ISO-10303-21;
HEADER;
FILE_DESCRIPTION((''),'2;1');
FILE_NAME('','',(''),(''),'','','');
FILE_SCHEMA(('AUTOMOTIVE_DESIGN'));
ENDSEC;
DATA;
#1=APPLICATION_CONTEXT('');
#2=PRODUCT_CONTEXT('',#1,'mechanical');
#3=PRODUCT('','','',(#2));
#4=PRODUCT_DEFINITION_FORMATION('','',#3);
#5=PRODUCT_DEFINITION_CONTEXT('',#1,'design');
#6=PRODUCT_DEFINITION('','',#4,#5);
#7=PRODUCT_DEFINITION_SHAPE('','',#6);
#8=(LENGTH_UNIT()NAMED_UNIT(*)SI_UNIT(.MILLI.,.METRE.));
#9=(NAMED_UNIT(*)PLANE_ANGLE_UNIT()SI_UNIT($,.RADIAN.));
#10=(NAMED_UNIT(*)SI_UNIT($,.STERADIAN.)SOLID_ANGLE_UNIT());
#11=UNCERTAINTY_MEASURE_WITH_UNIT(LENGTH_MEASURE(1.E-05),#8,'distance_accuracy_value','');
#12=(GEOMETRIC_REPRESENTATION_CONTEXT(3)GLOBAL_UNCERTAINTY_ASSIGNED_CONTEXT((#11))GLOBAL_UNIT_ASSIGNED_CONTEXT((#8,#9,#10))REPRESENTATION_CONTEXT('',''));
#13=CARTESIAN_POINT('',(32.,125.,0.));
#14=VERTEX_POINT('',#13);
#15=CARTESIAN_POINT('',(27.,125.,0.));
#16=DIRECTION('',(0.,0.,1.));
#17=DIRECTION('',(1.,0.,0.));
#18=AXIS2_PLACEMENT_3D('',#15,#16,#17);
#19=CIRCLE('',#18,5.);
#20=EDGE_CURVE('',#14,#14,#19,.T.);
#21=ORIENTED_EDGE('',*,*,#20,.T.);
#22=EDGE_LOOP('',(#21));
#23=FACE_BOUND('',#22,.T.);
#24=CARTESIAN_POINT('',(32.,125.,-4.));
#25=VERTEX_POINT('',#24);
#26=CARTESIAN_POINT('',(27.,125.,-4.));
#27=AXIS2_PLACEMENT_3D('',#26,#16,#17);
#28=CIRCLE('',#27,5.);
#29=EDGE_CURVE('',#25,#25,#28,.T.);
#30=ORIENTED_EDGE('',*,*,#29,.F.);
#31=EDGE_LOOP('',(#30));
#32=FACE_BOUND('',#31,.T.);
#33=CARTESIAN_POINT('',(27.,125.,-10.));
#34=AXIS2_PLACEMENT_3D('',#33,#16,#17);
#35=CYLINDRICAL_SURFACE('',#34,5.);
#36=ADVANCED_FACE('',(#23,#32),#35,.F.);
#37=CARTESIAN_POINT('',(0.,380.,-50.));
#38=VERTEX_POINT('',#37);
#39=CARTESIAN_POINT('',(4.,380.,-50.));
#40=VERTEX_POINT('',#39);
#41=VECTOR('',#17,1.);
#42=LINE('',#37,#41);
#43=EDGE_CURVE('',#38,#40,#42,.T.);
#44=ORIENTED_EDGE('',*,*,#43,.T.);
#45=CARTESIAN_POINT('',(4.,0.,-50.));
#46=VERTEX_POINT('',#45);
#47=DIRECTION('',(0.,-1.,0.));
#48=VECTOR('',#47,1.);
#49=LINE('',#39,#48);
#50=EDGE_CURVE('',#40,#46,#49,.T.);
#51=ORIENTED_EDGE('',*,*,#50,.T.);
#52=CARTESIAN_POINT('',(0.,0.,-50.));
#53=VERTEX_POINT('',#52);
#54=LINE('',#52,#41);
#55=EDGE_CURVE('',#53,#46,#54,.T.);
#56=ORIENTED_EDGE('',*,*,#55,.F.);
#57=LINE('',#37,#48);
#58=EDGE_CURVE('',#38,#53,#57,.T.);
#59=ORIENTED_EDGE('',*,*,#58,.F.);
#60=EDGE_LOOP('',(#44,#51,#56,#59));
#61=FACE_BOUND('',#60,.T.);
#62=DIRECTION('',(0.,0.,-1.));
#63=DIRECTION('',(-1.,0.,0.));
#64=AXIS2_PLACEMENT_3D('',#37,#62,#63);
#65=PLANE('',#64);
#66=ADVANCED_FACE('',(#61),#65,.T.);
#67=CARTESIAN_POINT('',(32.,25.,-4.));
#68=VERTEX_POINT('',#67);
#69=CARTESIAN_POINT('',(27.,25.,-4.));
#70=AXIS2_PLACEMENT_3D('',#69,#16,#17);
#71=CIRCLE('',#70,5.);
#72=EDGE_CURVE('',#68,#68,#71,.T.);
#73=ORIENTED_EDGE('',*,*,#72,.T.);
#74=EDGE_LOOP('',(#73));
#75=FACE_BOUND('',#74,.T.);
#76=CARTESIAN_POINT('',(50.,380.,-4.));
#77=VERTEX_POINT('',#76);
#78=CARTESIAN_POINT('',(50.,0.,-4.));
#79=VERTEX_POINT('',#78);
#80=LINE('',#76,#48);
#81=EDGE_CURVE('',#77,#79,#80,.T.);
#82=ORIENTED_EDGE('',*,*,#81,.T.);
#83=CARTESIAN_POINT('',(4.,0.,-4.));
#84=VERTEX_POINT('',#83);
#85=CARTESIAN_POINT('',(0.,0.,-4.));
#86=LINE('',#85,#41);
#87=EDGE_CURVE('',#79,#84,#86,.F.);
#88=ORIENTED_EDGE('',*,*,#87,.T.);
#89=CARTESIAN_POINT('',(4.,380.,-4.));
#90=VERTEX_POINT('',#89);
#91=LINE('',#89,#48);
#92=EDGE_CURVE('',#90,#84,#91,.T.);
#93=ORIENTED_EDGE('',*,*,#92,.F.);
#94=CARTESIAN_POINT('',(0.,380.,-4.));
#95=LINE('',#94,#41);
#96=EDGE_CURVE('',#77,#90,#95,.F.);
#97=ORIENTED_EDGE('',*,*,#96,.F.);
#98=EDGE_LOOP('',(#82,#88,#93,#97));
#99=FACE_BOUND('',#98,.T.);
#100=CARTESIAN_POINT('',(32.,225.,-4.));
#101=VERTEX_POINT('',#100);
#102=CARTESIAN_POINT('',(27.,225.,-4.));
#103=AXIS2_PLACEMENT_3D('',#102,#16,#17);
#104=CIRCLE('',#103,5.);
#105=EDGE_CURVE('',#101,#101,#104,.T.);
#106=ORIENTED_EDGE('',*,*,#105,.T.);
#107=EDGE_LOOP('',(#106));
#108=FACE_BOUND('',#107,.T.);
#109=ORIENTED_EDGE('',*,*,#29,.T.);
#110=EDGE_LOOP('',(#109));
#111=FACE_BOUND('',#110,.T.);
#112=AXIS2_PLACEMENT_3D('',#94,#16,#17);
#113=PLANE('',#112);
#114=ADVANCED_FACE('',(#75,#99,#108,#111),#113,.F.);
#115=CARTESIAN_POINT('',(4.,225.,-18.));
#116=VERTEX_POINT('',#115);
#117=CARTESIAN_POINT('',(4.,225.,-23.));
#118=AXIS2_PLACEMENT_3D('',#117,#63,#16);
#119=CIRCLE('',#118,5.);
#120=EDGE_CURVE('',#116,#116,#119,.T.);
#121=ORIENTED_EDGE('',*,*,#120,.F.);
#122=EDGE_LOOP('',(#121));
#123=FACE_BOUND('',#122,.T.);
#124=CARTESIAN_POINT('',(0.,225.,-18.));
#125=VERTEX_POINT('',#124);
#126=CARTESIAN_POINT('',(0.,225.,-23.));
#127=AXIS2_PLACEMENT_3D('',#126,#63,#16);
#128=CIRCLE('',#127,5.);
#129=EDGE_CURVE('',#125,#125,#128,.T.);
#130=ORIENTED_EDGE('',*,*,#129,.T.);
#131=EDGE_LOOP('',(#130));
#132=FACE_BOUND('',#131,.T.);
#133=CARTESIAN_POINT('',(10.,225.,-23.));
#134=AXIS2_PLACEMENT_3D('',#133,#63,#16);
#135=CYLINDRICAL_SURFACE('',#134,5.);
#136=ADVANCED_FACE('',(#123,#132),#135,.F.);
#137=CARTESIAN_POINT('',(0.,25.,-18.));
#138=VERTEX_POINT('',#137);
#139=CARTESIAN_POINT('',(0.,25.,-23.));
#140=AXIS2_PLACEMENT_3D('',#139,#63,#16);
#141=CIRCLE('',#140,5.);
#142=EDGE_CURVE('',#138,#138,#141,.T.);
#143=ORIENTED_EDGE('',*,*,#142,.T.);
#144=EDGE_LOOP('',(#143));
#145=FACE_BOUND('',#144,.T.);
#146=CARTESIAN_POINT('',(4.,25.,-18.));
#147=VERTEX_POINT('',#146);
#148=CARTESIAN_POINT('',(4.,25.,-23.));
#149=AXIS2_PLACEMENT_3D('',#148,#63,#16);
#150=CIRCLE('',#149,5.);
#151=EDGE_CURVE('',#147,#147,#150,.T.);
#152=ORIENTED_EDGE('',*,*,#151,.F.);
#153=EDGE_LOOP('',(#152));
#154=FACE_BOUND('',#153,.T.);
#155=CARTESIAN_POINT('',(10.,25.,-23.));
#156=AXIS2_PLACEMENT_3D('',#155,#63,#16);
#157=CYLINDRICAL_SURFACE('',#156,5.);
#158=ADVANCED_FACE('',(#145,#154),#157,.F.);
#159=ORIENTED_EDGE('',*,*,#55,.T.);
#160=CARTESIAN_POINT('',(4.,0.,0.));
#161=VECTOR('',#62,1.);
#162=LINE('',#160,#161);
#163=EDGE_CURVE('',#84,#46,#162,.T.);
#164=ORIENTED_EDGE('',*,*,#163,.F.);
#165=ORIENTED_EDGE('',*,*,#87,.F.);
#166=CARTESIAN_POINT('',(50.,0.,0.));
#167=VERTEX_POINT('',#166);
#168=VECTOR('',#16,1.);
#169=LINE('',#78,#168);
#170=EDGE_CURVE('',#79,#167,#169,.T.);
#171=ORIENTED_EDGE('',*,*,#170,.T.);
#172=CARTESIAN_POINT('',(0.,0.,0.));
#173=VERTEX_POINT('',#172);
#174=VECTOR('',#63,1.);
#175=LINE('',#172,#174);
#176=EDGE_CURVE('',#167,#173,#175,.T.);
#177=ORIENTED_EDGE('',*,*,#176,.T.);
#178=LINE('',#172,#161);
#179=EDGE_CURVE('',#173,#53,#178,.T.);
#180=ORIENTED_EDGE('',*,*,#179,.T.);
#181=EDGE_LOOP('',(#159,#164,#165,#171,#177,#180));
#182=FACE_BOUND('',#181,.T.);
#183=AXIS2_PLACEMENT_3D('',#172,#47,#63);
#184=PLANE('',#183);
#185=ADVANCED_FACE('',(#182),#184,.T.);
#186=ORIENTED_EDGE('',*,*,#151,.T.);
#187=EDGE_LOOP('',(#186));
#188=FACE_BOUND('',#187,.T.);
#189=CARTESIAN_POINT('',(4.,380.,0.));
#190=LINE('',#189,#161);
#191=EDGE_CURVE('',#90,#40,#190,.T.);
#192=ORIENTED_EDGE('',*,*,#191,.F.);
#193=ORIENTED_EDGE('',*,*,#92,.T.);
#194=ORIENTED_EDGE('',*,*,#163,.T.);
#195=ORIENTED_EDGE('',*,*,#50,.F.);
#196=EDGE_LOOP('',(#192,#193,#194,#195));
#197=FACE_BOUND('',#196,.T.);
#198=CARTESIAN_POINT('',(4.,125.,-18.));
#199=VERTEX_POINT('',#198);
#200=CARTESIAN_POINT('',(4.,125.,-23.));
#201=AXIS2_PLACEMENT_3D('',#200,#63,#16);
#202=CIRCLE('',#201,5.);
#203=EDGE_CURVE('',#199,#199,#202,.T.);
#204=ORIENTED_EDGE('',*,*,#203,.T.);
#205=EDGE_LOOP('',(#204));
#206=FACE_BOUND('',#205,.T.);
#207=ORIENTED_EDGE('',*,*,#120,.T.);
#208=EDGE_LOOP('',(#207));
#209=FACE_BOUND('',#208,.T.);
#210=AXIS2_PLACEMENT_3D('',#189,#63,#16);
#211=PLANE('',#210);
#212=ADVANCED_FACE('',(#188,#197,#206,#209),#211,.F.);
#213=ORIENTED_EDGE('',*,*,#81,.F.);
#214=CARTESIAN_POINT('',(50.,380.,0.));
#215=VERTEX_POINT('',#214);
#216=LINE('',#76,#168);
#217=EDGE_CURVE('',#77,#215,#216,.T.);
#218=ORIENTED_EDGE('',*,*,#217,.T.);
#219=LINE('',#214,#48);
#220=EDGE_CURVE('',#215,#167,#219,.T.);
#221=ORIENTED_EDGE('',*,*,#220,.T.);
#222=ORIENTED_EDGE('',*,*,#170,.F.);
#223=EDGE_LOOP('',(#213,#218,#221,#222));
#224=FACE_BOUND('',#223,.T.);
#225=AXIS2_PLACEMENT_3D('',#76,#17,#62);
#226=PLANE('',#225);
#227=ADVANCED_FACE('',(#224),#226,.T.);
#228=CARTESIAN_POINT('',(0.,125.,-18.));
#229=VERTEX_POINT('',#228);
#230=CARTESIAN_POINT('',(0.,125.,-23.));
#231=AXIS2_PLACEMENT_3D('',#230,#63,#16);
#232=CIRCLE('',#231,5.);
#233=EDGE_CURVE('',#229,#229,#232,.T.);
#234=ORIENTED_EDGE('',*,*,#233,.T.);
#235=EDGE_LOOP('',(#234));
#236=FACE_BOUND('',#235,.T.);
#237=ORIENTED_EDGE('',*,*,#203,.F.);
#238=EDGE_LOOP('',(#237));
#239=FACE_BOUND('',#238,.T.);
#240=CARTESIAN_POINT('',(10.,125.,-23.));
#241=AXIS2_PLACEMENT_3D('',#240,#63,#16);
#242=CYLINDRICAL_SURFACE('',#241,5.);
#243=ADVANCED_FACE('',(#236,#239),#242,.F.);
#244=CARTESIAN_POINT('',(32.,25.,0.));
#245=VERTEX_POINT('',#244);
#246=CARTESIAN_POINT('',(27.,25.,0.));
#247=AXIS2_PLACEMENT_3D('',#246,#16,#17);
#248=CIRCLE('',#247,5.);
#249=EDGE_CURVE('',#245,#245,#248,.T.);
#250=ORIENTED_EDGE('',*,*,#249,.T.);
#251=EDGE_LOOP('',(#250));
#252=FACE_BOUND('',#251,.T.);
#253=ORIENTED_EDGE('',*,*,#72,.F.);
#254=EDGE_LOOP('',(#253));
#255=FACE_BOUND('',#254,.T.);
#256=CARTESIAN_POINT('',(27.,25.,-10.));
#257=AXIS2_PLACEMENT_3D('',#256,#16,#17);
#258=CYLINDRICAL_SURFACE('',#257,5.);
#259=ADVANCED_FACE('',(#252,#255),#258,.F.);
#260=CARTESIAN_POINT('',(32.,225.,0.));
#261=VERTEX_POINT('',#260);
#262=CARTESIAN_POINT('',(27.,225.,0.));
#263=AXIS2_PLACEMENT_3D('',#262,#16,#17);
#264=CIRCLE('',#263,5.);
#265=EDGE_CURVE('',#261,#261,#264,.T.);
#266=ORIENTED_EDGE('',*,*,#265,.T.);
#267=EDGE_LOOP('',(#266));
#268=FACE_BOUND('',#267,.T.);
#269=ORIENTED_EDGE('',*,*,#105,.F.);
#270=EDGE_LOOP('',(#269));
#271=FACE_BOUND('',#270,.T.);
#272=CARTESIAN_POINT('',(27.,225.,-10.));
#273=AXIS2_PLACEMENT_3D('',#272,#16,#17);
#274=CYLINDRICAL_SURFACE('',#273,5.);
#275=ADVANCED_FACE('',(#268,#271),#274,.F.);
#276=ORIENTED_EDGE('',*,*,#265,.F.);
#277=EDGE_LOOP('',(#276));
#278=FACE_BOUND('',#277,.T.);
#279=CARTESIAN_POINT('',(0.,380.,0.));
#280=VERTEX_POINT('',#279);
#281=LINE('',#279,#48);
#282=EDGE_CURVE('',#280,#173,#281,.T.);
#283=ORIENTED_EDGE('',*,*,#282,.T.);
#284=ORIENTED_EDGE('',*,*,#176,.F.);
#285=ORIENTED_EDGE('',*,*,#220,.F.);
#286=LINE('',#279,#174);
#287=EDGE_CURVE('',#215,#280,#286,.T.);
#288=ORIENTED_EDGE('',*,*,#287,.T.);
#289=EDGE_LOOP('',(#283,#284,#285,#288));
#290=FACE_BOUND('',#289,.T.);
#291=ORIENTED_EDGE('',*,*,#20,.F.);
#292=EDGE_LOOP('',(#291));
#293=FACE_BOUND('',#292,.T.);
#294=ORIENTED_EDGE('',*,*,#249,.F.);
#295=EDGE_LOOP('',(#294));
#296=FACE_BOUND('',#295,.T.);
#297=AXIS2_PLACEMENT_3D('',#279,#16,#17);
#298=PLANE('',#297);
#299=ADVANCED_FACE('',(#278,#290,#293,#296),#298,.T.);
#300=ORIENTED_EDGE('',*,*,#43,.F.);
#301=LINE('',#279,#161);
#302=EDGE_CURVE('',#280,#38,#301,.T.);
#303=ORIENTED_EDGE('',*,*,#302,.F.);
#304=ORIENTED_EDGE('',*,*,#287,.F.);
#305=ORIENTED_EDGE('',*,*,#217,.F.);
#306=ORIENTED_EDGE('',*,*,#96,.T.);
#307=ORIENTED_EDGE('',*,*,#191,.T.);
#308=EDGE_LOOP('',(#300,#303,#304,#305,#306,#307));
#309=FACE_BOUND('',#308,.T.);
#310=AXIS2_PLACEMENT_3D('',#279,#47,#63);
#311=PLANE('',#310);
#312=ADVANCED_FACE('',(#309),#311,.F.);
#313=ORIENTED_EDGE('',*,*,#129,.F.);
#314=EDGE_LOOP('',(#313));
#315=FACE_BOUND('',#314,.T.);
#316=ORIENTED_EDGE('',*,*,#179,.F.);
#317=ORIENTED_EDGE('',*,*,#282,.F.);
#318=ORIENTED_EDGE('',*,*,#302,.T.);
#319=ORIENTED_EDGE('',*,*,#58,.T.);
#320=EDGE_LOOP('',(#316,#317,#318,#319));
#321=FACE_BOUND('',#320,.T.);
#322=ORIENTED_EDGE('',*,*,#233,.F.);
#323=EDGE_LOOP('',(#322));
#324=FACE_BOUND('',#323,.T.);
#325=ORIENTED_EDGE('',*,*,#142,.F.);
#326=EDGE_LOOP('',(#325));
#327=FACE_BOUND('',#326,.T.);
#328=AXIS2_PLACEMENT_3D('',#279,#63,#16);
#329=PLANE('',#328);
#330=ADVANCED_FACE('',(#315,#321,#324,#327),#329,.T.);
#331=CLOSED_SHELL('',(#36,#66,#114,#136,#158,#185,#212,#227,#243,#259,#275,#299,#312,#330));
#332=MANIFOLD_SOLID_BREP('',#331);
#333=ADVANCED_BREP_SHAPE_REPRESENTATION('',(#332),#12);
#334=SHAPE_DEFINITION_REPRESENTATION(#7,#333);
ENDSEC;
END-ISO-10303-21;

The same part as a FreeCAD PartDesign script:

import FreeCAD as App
import Part
import Sketcher
Q = App.Units.Quantity


def add_polygon(sketch, points):
    """Adds a closed chain of lines whose ends are joined by coincident constraints."""
    first, n = sketch.GeometryCount, len(points)
    for a, b in zip(points, points[1:] + points[:1]):
        sketch.addGeometry(Part.LineSegment(App.Vector(*a, 0), App.Vector(*b, 0)), False)
    for i in range(n):
        sketch.addConstraint(Sketcher.Constraint("Coincident", first + i, 2, first + (i + 1) % n, 1))

doc = App.newDocument("Part")
params = doc.addObject("Spreadsheet::Sheet", "Params")
for row, (alias, value) in enumerate([
    ("sketch1_width", "50 mm"),
    ("sketch1_width2", "46 mm"),
    ("pad1_length", "380 mm"),
    ("sketch2_diameter", "10 mm"),
    ("pocket1_length", "10 mm"),
    ("sketch3_diameter", "10 mm"),
    ("pocket2_length", "10 mm"),
], start=1):
    params.set(f"A{row}", alias)
    params.set(f"B{row}", "=" + value)
    params.setAlias(f"B{row}", alias)

body = doc.addObject("PartDesign::Body", "Body")

sketch1 = body.newObject("Sketcher::SketchObject", "Sketch")
sketch1.AttachmentSupport = (doc.getObject("XZ_Plane"), [""])
sketch1.MapMode = "FlatFace"
add_polygon(sketch1, [(0, -50), (0, 0), (50, 0), (50, -4), (4, -4), (4, -50)])
sketch1.addConstraint(Sketcher.Constraint("Vertical", 0))
sketch1.addConstraint(Sketcher.Constraint("Horizontal", 1))
sketch1.addConstraint(Sketcher.Constraint("Vertical", 2))
sketch1.addConstraint(Sketcher.Constraint("Horizontal", 3))
sketch1.addConstraint(Sketcher.Constraint("Vertical", 4))
sketch1.addConstraint(Sketcher.Constraint("Horizontal", 5))
sketch1.addConstraint(Sketcher.Constraint("Coincident", 0, 2, -1, 1))
sketch1.addConstraint(Sketcher.Constraint("Equal", 1, 0))
sketch1.addConstraint(Sketcher.Constraint("Equal", 5, 2))
sketch1.addConstraint(Sketcher.Constraint("DistanceX", 1, 1, 1, 2, Q("50 mm")))
sketch1.addConstraint(Sketcher.Constraint("DistanceX", 3, 2, 3, 1, Q("46 mm")))
sketch1.setExpression("Constraints[15]", "Params.sketch1_width")
sketch1.setExpression("Constraints[16]", "Params.sketch1_width2")
pad1 = body.newObject("PartDesign::Pad", "Pad")
pad1.Profile = sketch1
pad1.setExpression("Length", "Params.pad1_length")
pad1.Reversed = True

sketch2 = body.newObject("Sketcher::SketchObject", "Sketch001")
sketch2.AttachmentSupport = (doc.getObject("XY_Plane"), [""])
sketch2.MapMode = "FlatFace"
sketch2.addGeometry(Part.Circle(App.Vector(27, 225, 0), App.Vector(0, 0, 1), 5), False)
sketch2.addGeometry(Part.Circle(App.Vector(27, 125, 0), App.Vector(0, 0, 1), 5), False)
sketch2.addGeometry(Part.Circle(App.Vector(27, 25, 0), App.Vector(0, 0, 1), 5), False)
sketch2.addConstraint(Sketcher.Constraint("Equal", 0, 1))
sketch2.addConstraint(Sketcher.Constraint("Equal", 1, 2))
sketch2.addConstraint(Sketcher.Constraint("Vertical", 0, 3, 1, 3))
sketch2.addConstraint(Sketcher.Constraint("Vertical", 1, 3, 2, 3))
sketch2.addConstraint(Sketcher.Constraint("Diameter", 0, Q("10 mm")))
sketch2.addConstraint(Sketcher.Constraint("DistanceX", -1, 1, 0, 3, Q("27 mm")))
sketch2.addConstraint(Sketcher.Constraint("DistanceY", -1, 1, 0, 3, Q("225 mm")))
sketch2.addConstraint(Sketcher.Constraint("DistanceY", -1, 1, 1, 3, Q("125 mm")))
sketch2.addConstraint(Sketcher.Constraint("DistanceY", -1, 1, 2, 3, Q("25 mm")))
sketch2.setExpression("Constraints[4]", "Params.sketch2_diameter")
pocket1 = body.newObject("PartDesign::Pocket", "Pocket")
pocket1.Profile = sketch2
pocket1.setExpression("Length", "Params.pocket1_length")

sketch3 = body.newObject("Sketcher::SketchObject", "Sketch002")
sketch3.AttachmentSupport = (doc.getObject("YZ_Plane"), [""])
sketch3.MapMode = "FlatFace"
sketch3.addGeometry(Part.Circle(App.Vector(225, -23, 0), App.Vector(0, 0, 1), 5), False)
sketch3.addGeometry(Part.Circle(App.Vector(125, -23, 0), App.Vector(0, 0, 1), 5), False)
sketch3.addGeometry(Part.Circle(App.Vector(25, -23, 0), App.Vector(0, 0, 1), 5), False)
sketch3.addConstraint(Sketcher.Constraint("Equal", 0, 1))
sketch3.addConstraint(Sketcher.Constraint("Equal", 1, 2))
sketch3.addConstraint(Sketcher.Constraint("Horizontal", 0, 3, 1, 3))
sketch3.addConstraint(Sketcher.Constraint("Horizontal", 1, 3, 2, 3))
sketch3.addConstraint(Sketcher.Constraint("Diameter", 0, Q("10 mm")))
sketch3.addConstraint(Sketcher.Constraint("DistanceX", -1, 1, 0, 3, Q("225 mm")))
sketch3.addConstraint(Sketcher.Constraint("DistanceY", 0, 3, -1, 1, Q("23 mm")))
sketch3.addConstraint(Sketcher.Constraint("DistanceX", -1, 1, 1, 3, Q("125 mm")))
sketch3.addConstraint(Sketcher.Constraint("DistanceX", -1, 1, 2, 3, Q("25 mm")))
sketch3.setExpression("Constraints[4]", "Params.sketch3_diameter")
pocket2 = body.newObject("PartDesign::Pocket", "Pocket001")
pocket2.Profile = sketch3
pocket2.setExpression("Length", "Params.pocket2_length")
pocket2.Reversed = True

doc.recompute()
